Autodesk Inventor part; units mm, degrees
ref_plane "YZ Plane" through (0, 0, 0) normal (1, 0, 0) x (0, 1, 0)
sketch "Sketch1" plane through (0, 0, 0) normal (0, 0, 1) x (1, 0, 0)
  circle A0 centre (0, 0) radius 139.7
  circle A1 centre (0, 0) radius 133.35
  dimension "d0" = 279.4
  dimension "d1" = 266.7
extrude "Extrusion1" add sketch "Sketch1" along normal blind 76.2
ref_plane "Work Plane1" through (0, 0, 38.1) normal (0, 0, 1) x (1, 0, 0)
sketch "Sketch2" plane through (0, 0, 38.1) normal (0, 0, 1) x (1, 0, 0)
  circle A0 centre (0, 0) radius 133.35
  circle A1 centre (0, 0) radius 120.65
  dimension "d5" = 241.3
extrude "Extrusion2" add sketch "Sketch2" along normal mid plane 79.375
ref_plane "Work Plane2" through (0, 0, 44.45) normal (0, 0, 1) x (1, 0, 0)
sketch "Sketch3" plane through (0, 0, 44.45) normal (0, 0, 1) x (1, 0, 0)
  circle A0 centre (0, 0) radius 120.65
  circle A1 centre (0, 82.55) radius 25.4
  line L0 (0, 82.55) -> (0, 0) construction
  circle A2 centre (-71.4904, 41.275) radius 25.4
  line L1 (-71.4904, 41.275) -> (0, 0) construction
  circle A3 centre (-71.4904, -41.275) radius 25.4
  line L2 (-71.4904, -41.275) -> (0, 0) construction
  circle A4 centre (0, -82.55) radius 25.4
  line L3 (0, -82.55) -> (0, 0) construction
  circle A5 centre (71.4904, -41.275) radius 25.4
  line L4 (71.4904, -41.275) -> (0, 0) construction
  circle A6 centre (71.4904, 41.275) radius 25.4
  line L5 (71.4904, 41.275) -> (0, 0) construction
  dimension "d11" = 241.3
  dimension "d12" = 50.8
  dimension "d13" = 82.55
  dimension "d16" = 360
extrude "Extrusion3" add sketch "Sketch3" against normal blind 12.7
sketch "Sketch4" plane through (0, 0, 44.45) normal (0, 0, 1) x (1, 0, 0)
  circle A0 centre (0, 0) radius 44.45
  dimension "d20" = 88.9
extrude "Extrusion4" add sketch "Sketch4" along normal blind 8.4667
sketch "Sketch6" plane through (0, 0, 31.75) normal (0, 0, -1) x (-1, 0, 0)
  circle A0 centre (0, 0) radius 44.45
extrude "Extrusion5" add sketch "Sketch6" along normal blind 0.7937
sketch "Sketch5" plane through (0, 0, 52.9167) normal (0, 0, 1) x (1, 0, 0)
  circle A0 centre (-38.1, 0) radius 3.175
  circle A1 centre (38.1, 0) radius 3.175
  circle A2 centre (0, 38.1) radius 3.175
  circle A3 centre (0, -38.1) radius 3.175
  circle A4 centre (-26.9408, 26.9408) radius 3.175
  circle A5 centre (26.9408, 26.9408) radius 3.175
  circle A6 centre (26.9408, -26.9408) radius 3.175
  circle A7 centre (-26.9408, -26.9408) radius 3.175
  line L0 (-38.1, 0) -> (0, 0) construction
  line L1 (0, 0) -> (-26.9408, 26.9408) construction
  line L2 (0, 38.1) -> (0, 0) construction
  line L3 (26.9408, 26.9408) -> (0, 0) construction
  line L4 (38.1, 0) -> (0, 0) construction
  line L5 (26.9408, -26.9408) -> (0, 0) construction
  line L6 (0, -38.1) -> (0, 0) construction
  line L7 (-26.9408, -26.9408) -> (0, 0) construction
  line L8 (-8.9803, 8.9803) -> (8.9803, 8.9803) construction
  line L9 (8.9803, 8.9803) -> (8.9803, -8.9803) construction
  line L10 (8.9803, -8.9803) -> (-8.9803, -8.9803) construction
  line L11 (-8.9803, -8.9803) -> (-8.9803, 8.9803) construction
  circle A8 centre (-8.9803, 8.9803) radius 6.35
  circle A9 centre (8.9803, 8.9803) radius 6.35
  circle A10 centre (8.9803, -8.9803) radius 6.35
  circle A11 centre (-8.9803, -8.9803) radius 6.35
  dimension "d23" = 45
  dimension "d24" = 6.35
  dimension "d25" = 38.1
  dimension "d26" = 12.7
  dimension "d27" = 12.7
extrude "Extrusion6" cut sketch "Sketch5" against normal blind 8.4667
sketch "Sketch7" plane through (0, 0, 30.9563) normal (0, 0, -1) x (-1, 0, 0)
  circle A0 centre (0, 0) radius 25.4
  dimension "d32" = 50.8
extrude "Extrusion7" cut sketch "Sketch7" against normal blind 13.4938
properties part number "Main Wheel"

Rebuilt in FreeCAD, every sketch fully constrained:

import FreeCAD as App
import Part
import Sketcher
from FreeCAD import Vector
Q = App.Units.Quantity

doc = App.newDocument("Part")
body = doc.addObject("PartDesign::Body", "Body")

# Sketch on XY plane
sketch1 = body.newObject("Sketcher::SketchObject", "Sketch")
sketch1.AttachmentSupport = (doc.getObject("XY_Plane"), [""])
sketch1.MapMode = "FlatFace"
sketch1.addGeometry([
    Part.Circle(Vector(0, 0, 0), Vector(0, 0, 1), 140),
    Part.Circle(Vector(0, 0, 0), Vector(0, 0, 1), 133),
], False)
sketch1.addConstraint([
    Sketcher.Constraint("Coincident", 0, 3, -1, 1),
    Sketcher.Constraint("Coincident", 1, 3, -1, 1),
    Sketcher.Constraint("Diameter", 0, Q("11 in")),
    Sketcher.Constraint("Diameter", 1, Q("10.5 in")),
])
pad1 = body.newObject("PartDesign::Pad", "Pad")
pad1.Profile = sketch1
pad1.Length = Q("3 in")

# Sketch on XY plane
sketch2 = body.newObject("Sketcher::SketchObject", "Sketch001")
sketch2.AttachmentSupport = (doc.getObject("XY_Plane"), [""])
sketch2.MapMode = "FlatFace"
sketch2.AttachmentOffset = App.Placement(Vector(0, 0, 1.5 * 25.4), App.Rotation())
sketch2.addGeometry([
    Part.Circle(Vector(0, 0, 0), Vector(0, 0, 1), 133),
    Part.Circle(Vector(0, 0, 0), Vector(0, 0, 1), 121),
], False)
sketch2.addConstraint([
    Sketcher.Constraint("Coincident", 0, 3, -1, 1),
    Sketcher.Constraint("Coincident", 1, 3, -1, 1),
    Sketcher.Constraint("Diameter", 1, Q("9.5 in")),
    Sketcher.Constraint("Diameter", 0, Q("10.5 in")),
])
pad2 = body.newObject("PartDesign::Pad", "Pad001")
pad2.Profile = sketch2
pad2.Length = Q("3.125 in")
pad2.Midplane = True

# Sketch on XY plane
sketch3 = body.newObject("Sketcher::SketchObject", "Sketch002")
sketch3.AttachmentSupport = (doc.getObject("XY_Plane"), [""])
sketch3.MapMode = "FlatFace"
sketch3.AttachmentOffset = App.Placement(Vector(0, 0, 1.75 * 25.4), App.Rotation())
sketch3.addGeometry([
    Part.Circle(Vector(0, 0, 0), Vector(0, 0, 1), 121),  # 0
    Part.Circle(Vector(-71, -41, 0), Vector(0, 0, 1), 25),  # 1
    Part.Circle(Vector(0, -83, 0), Vector(0, 0, 1), 25),  # 2
    Part.Circle(Vector(71, -41, 0), Vector(0, 0, 1), 25),  # 3
    Part.Circle(Vector(-71, 41, 0), Vector(0, 0, 1), 25),  # 4
    Part.Circle(Vector(71, 41, 0), Vector(0, 0, 1), 25),  # 5
    Part.Circle(Vector(0, 83, 0), Vector(0, 0, 1), 25),  # 6
], False)
sketch3.addConstraint([
    Sketcher.Constraint("Coincident", 0, 3, -1, 1),
    Sketcher.Constraint("Equal", 1, 2),
    Sketcher.Constraint("Equal", 2, 3),
    Sketcher.Constraint("Equal", 3, 4),
    Sketcher.Constraint("Equal", 4, 5),
    Sketcher.Constraint("Equal", 5, 6),
    Sketcher.Constraint("Symmetric", 3, 3, 4, 3, -1, 1),
    Sketcher.Constraint("Symmetric", 1, 3, 5, 3, -1, 1),
    Sketcher.Constraint("Symmetric", 2, 3, 6, 3, -1, 1),
    Sketcher.Constraint("Symmetric", 1, 3, 3, 3, -2),
    Sketcher.Constraint("PointOnObject", 2, 3, -2),
    Sketcher.Constraint("Diameter", 1, Q("2 in")),
    Sketcher.Constraint("Diameter", 0, Q("9.5 in")),
    Sketcher.Constraint("DistanceY", 2, 3, -1, 1, Q("3.25 in")),
    Sketcher.Constraint("DistanceY", 1, 3, 4, 3, Q("3.25 in")),
    Sketcher.Constraint("DistanceX", 1, 3, -1, 1, Q("71.4904 mm")),
])
pad3 = body.newObject("PartDesign::Pad", "Pad002")
pad3.Profile = sketch3
pad3.Length = Q("0.5 in")
pad3.Reversed = True

# Sketch on XY plane
sketch4 = body.newObject("Sketcher::SketchObject", "Sketch003")
sketch4.AttachmentSupport = (doc.getObject("XY_Plane"), [""])
sketch4.MapMode = "FlatFace"
sketch4.AttachmentOffset = App.Placement(Vector(0, 0, 1.75 * 25.4), App.Rotation())
sketch4.addGeometry(Part.Circle(Vector(0, 0, 0), Vector(0, 0, 1), 44), False)
sketch4.addConstraint([
    Sketcher.Constraint("Coincident", 0, 3, -1, 1),
    Sketcher.Constraint("Diameter", 0, Q("3.5 in")),
])
pad4 = body.newObject("PartDesign::Pad", "Pad003")
pad4.Profile = sketch4
pad4.Length = 8.4667

# Sketch on XY plane
sketch5 = body.newObject("Sketcher::SketchObject", "Sketch004")
sketch5.AttachmentSupport = (doc.getObject("XY_Plane"), [""])
sketch5.MapMode = "FlatFace"
sketch5.AttachmentOffset = App.Placement(Vector(0, 0, 1.25 * 25.4), App.Rotation())
sketch5.addGeometry(Part.Circle(Vector(0, 0, 0), Vector(0, 0, 1), 44), False)
sketch5.addConstraint([
    Sketcher.Constraint("Coincident", 0, 3, -1, 1),
    Sketcher.Constraint("Diameter", 0, Q("3.5 in")),
])
pad5 = body.newObject("PartDesign::Pad", "Pad004")
pad5.Profile = sketch5
pad5.Length = Q("0.031248 in")
pad5.Reversed = True

# Sketch on XY plane
sketch6 = body.newObject("Sketcher::SketchObject", "Sketch005")
sketch6.AttachmentSupport = (doc.getObject("XY_Plane"), [""])
sketch6.MapMode = "FlatFace"
sketch6.AttachmentOffset = App.Placement(Vector(0, 0, 52.9167), App.Rotation())
sketch6.addGeometry([
    Part.Circle(Vector(-38.1, 0, 0), Vector(0, 0, 1), 3.2),  # 0
    Part.Circle(Vector(38.1, 0, 0), Vector(0, 0, 1), 3.2),  # 1
    Part.Circle(Vector(0, 38.1, 0), Vector(0, 0, 1), 3.2),  # 2
    Part.Circle(Vector(0, -38.1, 0), Vector(0, 0, 1), 3.2),  # 3
    Part.Circle(Vector(-26.9, 26.9, 0), Vector(0, 0, 1), 3.2),  # 4
    Part.Circle(Vector(26.9, 26.9, 0), Vector(0, 0, 1), 3.2),  # 5
    Part.Circle(Vector(26.9, -26.9, 0), Vector(0, 0, 1), 3.2),  # 6
    Part.Circle(Vector(-26.9, -26.9, 0), Vector(0, 0, 1), 3.2),  # 7
    Part.Circle(Vector(-9, 9, 0), Vector(0, 0, 1), 6.3),  # 8
    Part.Circle(Vector(9, 9, 0), Vector(0, 0, 1), 6.3),  # 9
    Part.Circle(Vector(9, -9, 0), Vector(0, 0, 1), 6.3),  # 10
    Part.Circle(Vector(-9, -9, 0), Vector(0, 0, 1), 6.3),  # 11
], False)
sketch6.addConstraint([
    Sketcher.Constraint("Equal", 0, 1),
    Sketcher.Constraint("Equal", 1, 2),
    Sketcher.Constraint("Equal", 2, 3),
    Sketcher.Constraint("Equal", 3, 4),
    Sketcher.Constraint("Equal", 4, 5),
    Sketcher.Constraint("Equal", 5, 6),
    Sketcher.Constraint("Equal", 6, 7),
    Sketcher.Constraint("Equal", 8, 9),
    Sketcher.Constraint("Equal", 9, 10),
    Sketcher.Constraint("Equal", 10, 11),
    Sketcher.Constraint("Symmetric", 0, 3, 1, 3, -1, 1),
    Sketcher.Constraint("Symmetric", 2, 3, 3, 3, -1, 1),
    Sketcher.Constraint("Symmetric", 4, 3, 6, 3, -1, 1),
    Sketcher.Constraint("Symmetric", 5, 3, 7, 3, -1, 1),
    Sketcher.Constraint("Symmetric", 8, 3, 10, 3, -1, 1),
    Sketcher.Constraint("Symmetric", 9, 3, 11, 3, -1, 1),
    Sketcher.Constraint("Symmetric", 4, 3, 5, 3, -2),
    Sketcher.Constraint("Symmetric", 8, 3, 9, 3, -2),
    Sketcher.Constraint("PointOnObject", 0, 3, -1),
    Sketcher.Constraint("PointOnObject", 2, 3, -2),
    Sketcher.Constraint("Diameter", 8, Q("0.5 in")),
    Sketcher.Constraint("Diameter", 0, Q("0.25 in")),
    Sketcher.Constraint("DistanceX", 0, 3, -1, 1, Q("1.5 in")),
    Sketcher.Constraint("DistanceY", -1, 1, 2, 3, Q("1.5 in")),
    Sketcher.Constraint("DistanceX", 4, 3, 8, 3, Q("0.7071 in")),
    Sketcher.Constraint("DistanceY", 8, 3, 4, 3, Q("0.7071 in")),
    Sketcher.Constraint("DistanceX", 8, 3, 9, 3, Q("0.7071 in")),
    Sketcher.Constraint("DistanceY", 10, 3, 9, 3, Q("0.7071 in")),
])
pocket1 = body.newObject("PartDesign::Pocket", "Pocket")
pocket1.Profile = sketch6
pocket1.Length = 8.4667

# Sketch on XY plane
sketch7 = body.newObject("Sketcher::SketchObject", "Sketch006")
sketch7.AttachmentSupport = (doc.getObject("XY_Plane"), [""])
sketch7.MapMode = "FlatFace"
sketch7.AttachmentOffset = App.Placement(Vector(0, 0, 1.218752 * 25.4), App.Rotation())
sketch7.addGeometry(Part.Circle(Vector(0, 0, 0), Vector(0, 0, 1), 25), False)
sketch7.addConstraint([
    Sketcher.Constraint("Coincident", 0, 3, -1, 1),
    Sketcher.Constraint("Diameter", 0, Q("2 in")),
])
pocket2 = body.newObject("PartDesign::Pocket", "Pocket001")
pocket2.Profile = sketch7
pocket2.Length = Q("0.531252 in")
pocket2.Reversed = True

doc.recompute()
